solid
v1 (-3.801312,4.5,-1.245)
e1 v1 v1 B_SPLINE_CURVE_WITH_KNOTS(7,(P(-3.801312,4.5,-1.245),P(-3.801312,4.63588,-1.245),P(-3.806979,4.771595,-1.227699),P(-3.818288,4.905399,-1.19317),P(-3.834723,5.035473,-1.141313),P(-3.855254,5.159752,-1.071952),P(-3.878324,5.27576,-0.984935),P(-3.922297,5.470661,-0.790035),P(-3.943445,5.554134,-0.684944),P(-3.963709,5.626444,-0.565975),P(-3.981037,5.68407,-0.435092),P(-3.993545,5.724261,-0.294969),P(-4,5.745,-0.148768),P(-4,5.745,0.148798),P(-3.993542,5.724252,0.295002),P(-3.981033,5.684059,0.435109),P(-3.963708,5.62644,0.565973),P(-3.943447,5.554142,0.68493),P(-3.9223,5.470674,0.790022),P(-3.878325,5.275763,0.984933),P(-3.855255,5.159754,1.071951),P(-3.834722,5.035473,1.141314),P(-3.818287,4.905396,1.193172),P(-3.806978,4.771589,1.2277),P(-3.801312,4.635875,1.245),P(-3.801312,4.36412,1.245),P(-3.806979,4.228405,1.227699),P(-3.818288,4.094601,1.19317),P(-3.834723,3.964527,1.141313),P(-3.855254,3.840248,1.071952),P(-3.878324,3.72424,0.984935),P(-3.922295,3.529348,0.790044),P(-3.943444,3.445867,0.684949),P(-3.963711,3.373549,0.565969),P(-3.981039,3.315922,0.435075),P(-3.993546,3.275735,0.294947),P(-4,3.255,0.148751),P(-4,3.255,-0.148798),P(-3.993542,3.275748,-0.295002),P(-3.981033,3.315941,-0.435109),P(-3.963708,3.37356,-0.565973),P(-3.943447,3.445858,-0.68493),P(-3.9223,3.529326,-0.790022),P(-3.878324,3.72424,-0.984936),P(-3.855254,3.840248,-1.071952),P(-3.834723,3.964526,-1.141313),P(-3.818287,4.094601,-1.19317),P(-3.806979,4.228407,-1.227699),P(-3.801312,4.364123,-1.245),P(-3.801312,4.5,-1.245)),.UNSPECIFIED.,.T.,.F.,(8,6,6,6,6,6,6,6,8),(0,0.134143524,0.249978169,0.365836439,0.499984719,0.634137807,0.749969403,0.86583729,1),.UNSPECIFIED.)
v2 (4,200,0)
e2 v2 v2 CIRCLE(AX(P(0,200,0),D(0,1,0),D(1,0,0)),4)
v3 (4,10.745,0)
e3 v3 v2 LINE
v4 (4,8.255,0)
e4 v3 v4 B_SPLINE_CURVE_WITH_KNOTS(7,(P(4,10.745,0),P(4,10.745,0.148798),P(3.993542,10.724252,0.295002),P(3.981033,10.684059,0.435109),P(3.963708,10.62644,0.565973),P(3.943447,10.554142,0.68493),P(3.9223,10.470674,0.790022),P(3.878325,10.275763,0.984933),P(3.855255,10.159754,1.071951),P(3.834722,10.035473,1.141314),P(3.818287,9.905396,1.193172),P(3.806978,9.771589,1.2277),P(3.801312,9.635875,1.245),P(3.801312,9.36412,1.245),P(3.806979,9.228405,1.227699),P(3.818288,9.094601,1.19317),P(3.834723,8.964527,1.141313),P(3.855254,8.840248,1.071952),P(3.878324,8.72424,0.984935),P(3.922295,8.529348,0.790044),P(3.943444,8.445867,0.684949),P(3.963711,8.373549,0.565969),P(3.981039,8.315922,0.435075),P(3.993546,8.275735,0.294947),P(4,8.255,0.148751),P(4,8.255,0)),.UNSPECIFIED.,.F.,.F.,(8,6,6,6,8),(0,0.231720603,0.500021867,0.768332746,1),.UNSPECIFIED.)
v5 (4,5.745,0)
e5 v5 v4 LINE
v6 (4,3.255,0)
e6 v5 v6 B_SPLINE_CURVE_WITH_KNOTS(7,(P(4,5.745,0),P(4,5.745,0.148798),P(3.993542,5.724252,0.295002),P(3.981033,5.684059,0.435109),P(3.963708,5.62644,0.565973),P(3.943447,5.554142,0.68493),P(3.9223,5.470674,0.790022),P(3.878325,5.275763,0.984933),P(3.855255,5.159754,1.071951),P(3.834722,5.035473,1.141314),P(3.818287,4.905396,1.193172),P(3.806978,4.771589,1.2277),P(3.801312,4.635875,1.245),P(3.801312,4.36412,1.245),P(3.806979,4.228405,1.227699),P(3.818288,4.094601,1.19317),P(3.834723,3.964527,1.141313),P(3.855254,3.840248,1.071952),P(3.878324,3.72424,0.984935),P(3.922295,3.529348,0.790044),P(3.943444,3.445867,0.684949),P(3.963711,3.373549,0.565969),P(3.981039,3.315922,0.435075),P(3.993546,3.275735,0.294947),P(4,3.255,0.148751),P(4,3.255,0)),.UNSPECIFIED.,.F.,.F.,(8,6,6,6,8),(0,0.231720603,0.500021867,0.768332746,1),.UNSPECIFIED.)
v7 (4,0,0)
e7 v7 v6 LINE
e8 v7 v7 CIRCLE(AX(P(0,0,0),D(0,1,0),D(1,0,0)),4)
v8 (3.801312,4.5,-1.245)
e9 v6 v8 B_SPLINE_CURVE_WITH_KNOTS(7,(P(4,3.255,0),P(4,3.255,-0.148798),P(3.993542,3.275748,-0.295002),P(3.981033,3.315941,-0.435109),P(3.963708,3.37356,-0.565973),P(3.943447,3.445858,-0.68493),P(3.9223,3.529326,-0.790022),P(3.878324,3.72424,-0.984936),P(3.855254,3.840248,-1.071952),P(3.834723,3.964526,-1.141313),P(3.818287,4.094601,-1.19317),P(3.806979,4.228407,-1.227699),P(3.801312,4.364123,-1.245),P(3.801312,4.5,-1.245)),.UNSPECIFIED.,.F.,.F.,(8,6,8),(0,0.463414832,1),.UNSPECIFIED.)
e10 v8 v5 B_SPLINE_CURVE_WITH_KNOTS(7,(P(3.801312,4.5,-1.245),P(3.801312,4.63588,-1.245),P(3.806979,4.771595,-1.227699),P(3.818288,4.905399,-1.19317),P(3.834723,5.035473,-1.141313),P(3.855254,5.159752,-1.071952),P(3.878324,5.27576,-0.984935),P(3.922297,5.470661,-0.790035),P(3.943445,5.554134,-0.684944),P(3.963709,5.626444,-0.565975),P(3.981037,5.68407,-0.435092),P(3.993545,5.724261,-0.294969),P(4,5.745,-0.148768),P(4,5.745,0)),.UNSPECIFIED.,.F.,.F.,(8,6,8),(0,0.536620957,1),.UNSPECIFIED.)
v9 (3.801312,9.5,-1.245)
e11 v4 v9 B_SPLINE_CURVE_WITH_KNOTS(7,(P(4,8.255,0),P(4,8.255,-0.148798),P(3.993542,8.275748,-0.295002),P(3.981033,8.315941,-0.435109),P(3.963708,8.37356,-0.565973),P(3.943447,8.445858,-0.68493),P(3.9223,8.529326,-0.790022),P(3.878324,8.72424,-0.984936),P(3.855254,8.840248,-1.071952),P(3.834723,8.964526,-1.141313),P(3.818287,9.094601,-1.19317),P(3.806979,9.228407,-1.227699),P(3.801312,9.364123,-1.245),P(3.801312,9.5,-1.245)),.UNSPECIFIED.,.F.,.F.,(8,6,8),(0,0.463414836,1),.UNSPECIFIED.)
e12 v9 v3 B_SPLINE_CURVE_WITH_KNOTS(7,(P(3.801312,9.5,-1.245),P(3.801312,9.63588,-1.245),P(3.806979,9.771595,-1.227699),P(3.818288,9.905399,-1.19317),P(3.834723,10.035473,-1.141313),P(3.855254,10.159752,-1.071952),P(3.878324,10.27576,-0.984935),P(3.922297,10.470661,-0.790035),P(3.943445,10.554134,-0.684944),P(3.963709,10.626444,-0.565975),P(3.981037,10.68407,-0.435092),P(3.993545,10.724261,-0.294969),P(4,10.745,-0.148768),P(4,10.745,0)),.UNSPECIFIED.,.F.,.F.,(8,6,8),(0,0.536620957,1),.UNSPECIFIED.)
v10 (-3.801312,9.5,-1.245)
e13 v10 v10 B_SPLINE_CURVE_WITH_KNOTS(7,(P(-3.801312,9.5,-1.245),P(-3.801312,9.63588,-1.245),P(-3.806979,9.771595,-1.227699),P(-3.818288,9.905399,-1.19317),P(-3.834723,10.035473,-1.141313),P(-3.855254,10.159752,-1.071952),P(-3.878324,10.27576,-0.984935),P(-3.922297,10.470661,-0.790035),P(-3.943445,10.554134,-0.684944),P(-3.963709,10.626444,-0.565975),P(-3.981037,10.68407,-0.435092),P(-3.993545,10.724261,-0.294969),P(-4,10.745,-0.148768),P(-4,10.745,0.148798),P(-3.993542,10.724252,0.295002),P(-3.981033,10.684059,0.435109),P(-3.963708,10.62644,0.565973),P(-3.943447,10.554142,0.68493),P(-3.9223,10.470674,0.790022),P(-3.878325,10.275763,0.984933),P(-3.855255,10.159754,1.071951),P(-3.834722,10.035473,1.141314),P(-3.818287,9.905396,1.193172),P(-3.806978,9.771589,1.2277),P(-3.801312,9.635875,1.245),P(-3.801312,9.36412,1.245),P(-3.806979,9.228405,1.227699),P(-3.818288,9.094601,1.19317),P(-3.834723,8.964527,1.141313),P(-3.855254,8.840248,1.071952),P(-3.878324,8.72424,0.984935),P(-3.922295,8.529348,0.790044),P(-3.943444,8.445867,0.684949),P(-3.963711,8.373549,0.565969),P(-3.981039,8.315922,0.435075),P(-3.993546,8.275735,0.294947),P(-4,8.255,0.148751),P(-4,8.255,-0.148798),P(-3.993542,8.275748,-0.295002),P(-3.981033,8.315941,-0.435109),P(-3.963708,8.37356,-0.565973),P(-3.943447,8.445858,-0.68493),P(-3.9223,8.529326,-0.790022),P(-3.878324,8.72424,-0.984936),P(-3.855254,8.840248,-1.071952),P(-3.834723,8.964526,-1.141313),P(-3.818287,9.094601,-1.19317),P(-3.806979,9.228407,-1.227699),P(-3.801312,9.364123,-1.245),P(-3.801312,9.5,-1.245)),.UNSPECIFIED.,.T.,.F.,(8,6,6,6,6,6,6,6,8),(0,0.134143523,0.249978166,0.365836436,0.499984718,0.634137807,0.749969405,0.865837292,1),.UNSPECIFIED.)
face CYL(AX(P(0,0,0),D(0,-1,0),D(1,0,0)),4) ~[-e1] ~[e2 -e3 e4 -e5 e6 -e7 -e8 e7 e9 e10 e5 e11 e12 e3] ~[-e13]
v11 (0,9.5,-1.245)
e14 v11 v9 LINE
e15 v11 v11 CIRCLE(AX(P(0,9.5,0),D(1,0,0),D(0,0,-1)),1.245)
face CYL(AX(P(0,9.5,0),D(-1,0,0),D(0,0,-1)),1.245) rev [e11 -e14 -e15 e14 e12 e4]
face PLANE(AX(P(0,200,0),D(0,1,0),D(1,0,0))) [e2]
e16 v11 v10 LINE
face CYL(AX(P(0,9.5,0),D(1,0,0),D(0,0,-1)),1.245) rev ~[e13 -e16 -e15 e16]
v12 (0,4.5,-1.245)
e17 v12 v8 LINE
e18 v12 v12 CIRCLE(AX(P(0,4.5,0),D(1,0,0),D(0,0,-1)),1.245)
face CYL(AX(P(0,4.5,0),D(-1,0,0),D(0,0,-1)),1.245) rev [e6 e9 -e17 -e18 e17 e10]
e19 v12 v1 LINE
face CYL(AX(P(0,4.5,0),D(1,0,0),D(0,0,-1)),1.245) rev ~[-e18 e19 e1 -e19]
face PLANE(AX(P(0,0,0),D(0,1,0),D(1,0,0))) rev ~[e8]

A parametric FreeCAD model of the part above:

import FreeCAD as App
import Part
import Sketcher
from FreeCAD import Vector

doc = App.newDocument("Part")
params = doc.addObject("Spreadsheet::Sheet", "Params")
for row, (alias, value) in enumerate([
    ("sketch1_diameter", "8 mm"),
    ("pad1_length", "200 mm"),
    ("sketch2_diameter", "2.49 mm"),
], start=1):
    params.set(f"A{row}", alias)
    params.set(f"B{row}", "=" + value)
    params.setAlias(f"B{row}", alias)

body = doc.addObject("PartDesign::Body", "Body")

sketch1 = body.newObject("Sketcher::SketchObject", "Sketch")
sketch1.AttachmentSupport = (doc.getObject("XZ_Plane"), [""])
sketch1.MapMode = "FlatFace"
sketch1.addGeometry(Part.Circle(Vector(0, 0, 0), Vector(0, 0, 1), 4), False)
sketch1.addConstraint(Sketcher.Constraint("Coincident", 0, 3, -1, 1))
sketch1.addConstraint(Sketcher.Constraint("Diameter", 0, 8.0))
sketch1.setExpression("Constraints[1]", "Params.sketch1_diameter")
pad1 = body.newObject("PartDesign::Pad", "Pad")
pad1.Profile = sketch1
pad1.setExpression("Length", "Params.pad1_length")
pad1.Reversed = True

sketch2 = body.newObject("Sketcher::SketchObject", "Sketch001")
sketch2.AttachmentSupport = (doc.getObject("YZ_Plane"), [""])
sketch2.MapMode = "FlatFace"
sketch2.addGeometry(Part.Circle(Vector(4.5, 0, 0), Vector(0, 0, 1), 1.2), False)
sketch2.addGeometry(Part.Circle(Vector(9.5, 0, 0), Vector(0, 0, 1), 1.2), False)
sketch2.addConstraint(Sketcher.Constraint("Equal", 0, 1))
sketch2.addConstraint(Sketcher.Constraint("PointOnObject", 0, 3, -1))
sketch2.addConstraint(Sketcher.Constraint("PointOnObject", 1, 3, -1))
sketch2.addConstraint(Sketcher.Constraint("Diameter", 0, 2.49))
sketch2.addConstraint(Sketcher.Constraint("DistanceX", 0, 3, 1, 3, 5.0))
sketch2.addConstraint(Sketcher.Constraint("DistanceX", -1, 1, 0, 3, 4.5))
sketch2.setExpression("Constraints[3]", "Params.sketch2_diameter")
pocket1 = body.newObject("PartDesign::Pocket", "Pocket")
pocket1.Profile = sketch2
pocket1.Type = "ThroughAll"
pocket1.Midplane = True

doc.recompute()
